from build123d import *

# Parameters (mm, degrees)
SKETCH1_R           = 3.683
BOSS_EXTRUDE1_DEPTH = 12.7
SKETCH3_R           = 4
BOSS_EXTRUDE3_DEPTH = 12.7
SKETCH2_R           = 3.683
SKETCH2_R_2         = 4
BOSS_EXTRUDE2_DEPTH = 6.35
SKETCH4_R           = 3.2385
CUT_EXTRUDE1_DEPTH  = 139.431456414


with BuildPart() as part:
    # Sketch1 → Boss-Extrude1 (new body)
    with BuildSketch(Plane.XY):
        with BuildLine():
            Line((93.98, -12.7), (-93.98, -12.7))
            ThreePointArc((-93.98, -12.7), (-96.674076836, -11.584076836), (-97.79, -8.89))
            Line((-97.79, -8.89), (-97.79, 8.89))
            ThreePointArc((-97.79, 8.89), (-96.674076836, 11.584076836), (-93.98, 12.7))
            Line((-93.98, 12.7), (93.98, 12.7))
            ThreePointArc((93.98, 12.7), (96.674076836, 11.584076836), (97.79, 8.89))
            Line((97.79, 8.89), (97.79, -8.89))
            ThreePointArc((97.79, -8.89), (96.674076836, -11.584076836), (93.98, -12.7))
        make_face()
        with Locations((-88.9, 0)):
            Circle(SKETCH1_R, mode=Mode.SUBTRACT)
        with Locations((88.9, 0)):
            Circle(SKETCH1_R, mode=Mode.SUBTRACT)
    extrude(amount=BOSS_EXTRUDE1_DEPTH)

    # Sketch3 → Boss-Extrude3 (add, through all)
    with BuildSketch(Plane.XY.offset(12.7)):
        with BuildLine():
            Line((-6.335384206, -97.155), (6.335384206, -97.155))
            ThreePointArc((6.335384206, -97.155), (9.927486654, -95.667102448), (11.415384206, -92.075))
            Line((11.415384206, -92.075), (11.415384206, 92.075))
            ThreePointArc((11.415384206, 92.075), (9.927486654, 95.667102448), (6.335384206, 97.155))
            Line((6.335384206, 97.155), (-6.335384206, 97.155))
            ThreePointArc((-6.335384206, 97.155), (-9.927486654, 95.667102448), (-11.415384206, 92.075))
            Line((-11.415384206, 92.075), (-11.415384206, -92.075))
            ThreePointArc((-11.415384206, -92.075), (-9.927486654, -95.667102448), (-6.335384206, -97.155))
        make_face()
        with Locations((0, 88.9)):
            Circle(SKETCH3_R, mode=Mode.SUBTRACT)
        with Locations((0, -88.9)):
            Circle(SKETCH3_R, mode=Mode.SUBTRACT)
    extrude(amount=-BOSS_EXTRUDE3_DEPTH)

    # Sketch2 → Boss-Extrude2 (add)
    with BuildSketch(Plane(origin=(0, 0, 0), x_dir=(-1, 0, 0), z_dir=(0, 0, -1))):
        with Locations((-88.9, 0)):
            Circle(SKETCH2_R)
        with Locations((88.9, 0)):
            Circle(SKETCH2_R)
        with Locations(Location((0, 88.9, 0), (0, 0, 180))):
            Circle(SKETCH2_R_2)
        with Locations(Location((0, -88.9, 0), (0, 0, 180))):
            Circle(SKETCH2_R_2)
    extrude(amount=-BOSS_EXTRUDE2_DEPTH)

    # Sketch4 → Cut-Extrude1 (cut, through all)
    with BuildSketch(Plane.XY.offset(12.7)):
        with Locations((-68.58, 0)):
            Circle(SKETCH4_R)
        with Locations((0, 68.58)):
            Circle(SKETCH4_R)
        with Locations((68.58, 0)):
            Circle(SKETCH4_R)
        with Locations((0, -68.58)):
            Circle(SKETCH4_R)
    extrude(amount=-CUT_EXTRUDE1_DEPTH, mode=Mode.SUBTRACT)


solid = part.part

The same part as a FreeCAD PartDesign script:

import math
import FreeCAD as App
import Part
import Sketcher
Q = App.Units.Quantity

doc = App.newDocument("Part")
params = doc.addObject("Spreadsheet::Sheet", "Params")
for row, (alias, value) in enumerate([
    ("sketch1_diameter", "0.29 in"),
    ("sketch1_radius", "0.15 in"),
    ("sketch1_width", "7.4 in"),
    ("sketch1_height", "0.7 in"),
    ("pad1_length", "0.5 in"),
    ("sketch2_radius", "0.2 in"),
    ("sketch2_height", "7.25 in"),
    ("sketch3_diameter", "0.29 in"),
    ("pad3_length", "0.25 in"),
    ("sketch4_diameter", "0.255 in"),
], start=1):
    params.set(f"A{row}", alias)
    params.set(f"B{row}", "=" + value)
    params.setAlias(f"B{row}", alias)

body = doc.addObject("PartDesign::Body", "Body")

sketch1 = body.newObject("Sketcher::SketchObject", "Sketch")
sketch1.AttachmentSupport = (doc.getObject("XY_Plane"), [""])
sketch1.MapMode = "FlatFace"
sketch1.addGeometry([
    Part.LineSegment(App.Vector(-94, -12.7, 0), App.Vector(94, -12.7, 0)),
    Part.ArcOfCircle(Part.Circle(App.Vector(94, -8.9, 0), App.Vector(0, 0, 1), 3.8), math.radians(-90), math.radians(0)),
    Part.LineSegment(App.Vector(97.8, -8.9, 0), App.Vector(97.8, 8.9, 0)),
    Part.ArcOfCircle(Part.Circle(App.Vector(94, 8.9, 0), App.Vector(0, 0, 1), 3.8), math.radians(0), math.radians(90)),
    Part.LineSegment(App.Vector(94, 12.7, 0), App.Vector(-94, 12.7, 0)),
    Part.ArcOfCircle(Part.Circle(App.Vector(-94, 8.9, 0), App.Vector(0, 0, 1), 3.8), math.radians(90), math.radians(180)),
    Part.LineSegment(App.Vector(-97.8, 8.9, 0), App.Vector(-97.8, -8.9, 0)),
    Part.ArcOfCircle(Part.Circle(App.Vector(-94, -8.9, 0), App.Vector(0, 0, 1), 3.8), math.radians(-180), math.radians(-90)),
    Part.Circle(App.Vector(88.9, 0, 0), App.Vector(0, 0, 1), 3.7),
    Part.Circle(App.Vector(-88.9, 0, 0), App.Vector(0, 0, 1), 3.7),
], False)
sketch1.addConstraint([
    Sketcher.Constraint("Tangent", 0, 2, 1, 1),
    Sketcher.Constraint("Tangent", 1, 2, 2, 1),
    Sketcher.Constraint("Tangent", 2, 2, 3, 1),
    Sketcher.Constraint("Tangent", 3, 2, 4, 1),
    Sketcher.Constraint("Tangent", 4, 2, 5, 1),
    Sketcher.Constraint("Tangent", 5, 2, 6, 1),
    Sketcher.Constraint("Tangent", 6, 2, 7, 1),
    Sketcher.Constraint("Tangent", 7, 2, 0, 1),
    Sketcher.Constraint("Horizontal", 0),
    Sketcher.Constraint("Vertical", 2),
    Sketcher.Constraint("Horizontal", 4),
    Sketcher.Constraint("Vertical", 6),
    Sketcher.Constraint("Equal", 1, 3),
    Sketcher.Constraint("Equal", 3, 5),
    Sketcher.Constraint("Equal", 5, 7),
    Sketcher.Constraint("Equal", 8, 9),
    Sketcher.Constraint("Symmetric", 1, 3, 5, 3, -1, 1),
    Sketcher.Constraint("Symmetric", 8, 3, 9, 3, -1, 1),
    Sketcher.Constraint("PointOnObject", 8, 3, -1),
    Sketcher.Constraint("Diameter", 8, Q("0.29 in")),
    Sketcher.Constraint("Radius", 1, Q("0.15 in")),
    Sketcher.Constraint("DistanceX", 0, 1, 0, 2, Q("7.4 in")),
    Sketcher.Constraint("DistanceY", 2, 1, 2, 2, Q("0.7 in")),
    Sketcher.Constraint("DistanceX", 9, 3, 8, 3, Q("7 in")),
])
sketch1.setExpression("Constraints[19]", "Params.sketch1_diameter")
sketch1.setExpression("Constraints[20]", "Params.sketch1_radius")
sketch1.setExpression("Constraints[21]", "Params.sketch1_width")
sketch1.setExpression("Constraints[22]", "Params.sketch1_height")
pad1 = body.newObject("PartDesign::Pad", "Pad")
pad1.Profile = sketch1
pad1.setExpression("Length", "Params.pad1_length")

sketch2 = body.newObject("Sketcher::SketchObject", "Sketch001")
sketch2.AttachmentSupport = (doc.getObject("XY_Plane"), [""])
sketch2.MapMode = "FlatFace"
sketch2.AttachmentOffset = App.Placement(App.Vector(0, 0, 0.5 * 25.4), App.Rotation())
sketch2.addGeometry([
    Part.LineSegment(App.Vector(-6.3, -97.2, 0), App.Vector(6.3, -97.2, 0)),
    Part.ArcOfCircle(Part.Circle(App.Vector(6.3, -92.1, 0), App.Vector(0, 0, 1), 5.1), math.radians(-90), math.radians(0)),
    Part.LineSegment(App.Vector(11.4, -92.1, 0), App.Vector(11.4, 92.1, 0)),
    Part.ArcOfCircle(Part.Circle(App.Vector(6.3, 92.1, 0), App.Vector(0, 0, 1), 5.1), math.radians(0), math.radians(90)),
    Part.LineSegment(App.Vector(6.3, 97.2, 0), App.Vector(-6.3, 97.2, 0)),
    Part.ArcOfCircle(Part.Circle(App.Vector(-6.3, 92.1, 0), App.Vector(0, 0, 1), 5.1), math.radians(90), math.radians(180)),
    Part.LineSegment(App.Vector(-11.4, 92.1, 0), App.Vector(-11.4, -92.1, 0)),
    Part.ArcOfCircle(Part.Circle(App.Vector(-6.3, -92.1, 0), App.Vector(0, 0, 1), 5.1), math.radians(-180), math.radians(-90)),
    Part.Circle(App.Vector(0, -88.9, 0), App.Vector(0, 0, 1), 4),
    Part.Circle(App.Vector(0, 88.9, 0), App.Vector(0, 0, 1), 4),
], False)
sketch2.addConstraint([
    Sketcher.Constraint("Tangent", 0, 2, 1, 1),
    Sketcher.Constraint("Tangent", 1, 2, 2, 1),
    Sketcher.Constraint("Tangent", 2, 2, 3, 1),
    Sketcher.Constraint("Tangent", 3, 2, 4, 1),
    Sketcher.Constraint("Tangent", 4, 2, 5, 1),
    Sketcher.Constraint("Tangent", 5, 2, 6, 1),
    Sketcher.Constraint("Tangent", 6, 2, 7, 1),
    Sketcher.Constraint("Tangent", 7, 2, 0, 1),
    Sketcher.Constraint("Horizontal", 0),
    Sketcher.Constraint("Vertical", 2),
    Sketcher.Constraint("Horizontal", 4),
    Sketcher.Constraint("Vertical", 6),
    Sketcher.Constraint("Equal", 1, 3),
    Sketcher.Constraint("Equal", 3, 5),
    Sketcher.Constraint("Equal", 5, 7),
    Sketcher.Constraint("Equal", 8, 9),
    Sketcher.Constraint("Symmetric", 1, 3, 5, 3, -1, 1),
    Sketcher.Constraint("Symmetric", 8, 3, 9, 3, -1, 1),
    Sketcher.Constraint("PointOnObject", 8, 3, -2),
    Sketcher.Constraint("Radius", 1, Q("0.2 in")),
    Sketcher.Constraint("DistanceY", 8, 3, 9, 3, Q("7 in")),
    Sketcher.Constraint("DistanceY", 2, 1, 2, 2, Q("7.25 in")),
    Sketcher.Constraint("Diameter", 8, Q("8 mm")),
    Sketcher.Constraint("DistanceX", 0, 1, 0, 2, Q("12.670768 mm")),
])
sketch2.setExpression("Constraints[19]", "Params.sketch2_radius")
sketch2.setExpression("Constraints[21]", "Params.sketch2_height")
pad2 = body.newObject("PartDesign::Pad", "Pad001")
pad2.Profile = sketch2
pad2.Type = "UpToLast"
pad2.Reversed = True

sketch3 = body.newObject("Sketcher::SketchObject", "Sketch002")
sketch3.AttachmentSupport = (doc.getObject("XY_Plane"), [""])
sketch3.MapMode = "FlatFace"
sketch3.addGeometry([
    Part.Circle(App.Vector(88.9, 0, 0), App.Vector(0, 0, 1), 3.7),
    Part.Circle(App.Vector(-88.9, 0, 0), App.Vector(0, 0, 1), 3.7),
    Part.Circle(App.Vector(0, 88.9, 0), App.Vector(0, 0, 1), 4),
    Part.Circle(App.Vector(0, -88.9, 0), App.Vector(0, 0, 1), 4),
], False)
sketch3.addConstraint([
    Sketcher.Constraint("Equal", 0, 1),
    Sketcher.Constraint("Equal", 2, 3),
    Sketcher.Constraint("Symmetric", 0, 3, 1, 3, -1, 1),
    Sketcher.Constraint("Symmetric", 2, 3, 3, 3, -1, 1),
    Sketcher.Constraint("PointOnObject", 0, 3, -1),
    Sketcher.Constraint("PointOnObject", 2, 3, -2),
    Sketcher.Constraint("Diameter", 0, Q("0.29 in")),
    Sketcher.Constraint("DistanceX", 1, 3, 0, 3, Q("7 in")),
    Sketcher.Constraint("DistanceY", 3, 3, 2, 3, Q("7 in")),
    Sketcher.Constraint("Diameter", 2, Q("8 mm")),
])
sketch3.setExpression("Constraints[6]", "Params.sketch3_diameter")
pad3 = body.newObject("PartDesign::Pad", "Pad002")
pad3.Profile = sketch3
pad3.setExpression("Length", "Params.pad3_length")

sketch4 = body.newObject("Sketcher::SketchObject", "Sketch003")
sketch4.AttachmentSupport = (doc.getObject("XY_Plane"), [""])
sketch4.MapMode = "FlatFace"
sketch4.AttachmentOffset = App.Placement(App.Vector(0, 0, 0.5 * 25.4), App.Rotation())
sketch4.addGeometry([
    Part.Circle(App.Vector(-68.6, 0, 0), App.Vector(0, 0, 1), 3.2),
    Part.Circle(App.Vector(0, 68.6, 0), App.Vector(0, 0, 1), 3.2),
    Part.Circle(App.Vector(68.6, 0, 0), App.Vector(0, 0, 1), 3.2),
    Part.Circle(App.Vector(0, -68.6, 0), App.Vector(0, 0, 1), 3.2),
], False)
sketch4.addConstraint([
    Sketcher.Constraint("Equal", 0, 1),
    Sketcher.Constraint("Equal", 1, 2),
    Sketcher.Constraint("Equal", 2, 3),
    Sketcher.Constraint("Symmetric", 0, 3, 2, 3, -1, 1),
    Sketcher.Constraint("Symmetric", 1, 3, 3, 3, -1, 1),
    Sketcher.Constraint("PointOnObject", 0, 3, -1),
    Sketcher.Constraint("PointOnObject", 1, 3, -2),
    Sketcher.Constraint("Diameter", 0, Q("0.255 in")),
    Sketcher.Constraint("DistanceX", 0, 3, -1, 1, Q("2.7 in")),
    Sketcher.Constraint("DistanceY", -1, 1, 1, 3, Q("2.7 in")),
])
sketch4.setExpression("Constraints[7]", "Params.sketch4_diameter")
pocket1 = body.newObject("PartDesign::Pocket", "Pocket")
pocket1.Profile = sketch4
pocket1.Type = "ThroughAll"

doc.recompute()
